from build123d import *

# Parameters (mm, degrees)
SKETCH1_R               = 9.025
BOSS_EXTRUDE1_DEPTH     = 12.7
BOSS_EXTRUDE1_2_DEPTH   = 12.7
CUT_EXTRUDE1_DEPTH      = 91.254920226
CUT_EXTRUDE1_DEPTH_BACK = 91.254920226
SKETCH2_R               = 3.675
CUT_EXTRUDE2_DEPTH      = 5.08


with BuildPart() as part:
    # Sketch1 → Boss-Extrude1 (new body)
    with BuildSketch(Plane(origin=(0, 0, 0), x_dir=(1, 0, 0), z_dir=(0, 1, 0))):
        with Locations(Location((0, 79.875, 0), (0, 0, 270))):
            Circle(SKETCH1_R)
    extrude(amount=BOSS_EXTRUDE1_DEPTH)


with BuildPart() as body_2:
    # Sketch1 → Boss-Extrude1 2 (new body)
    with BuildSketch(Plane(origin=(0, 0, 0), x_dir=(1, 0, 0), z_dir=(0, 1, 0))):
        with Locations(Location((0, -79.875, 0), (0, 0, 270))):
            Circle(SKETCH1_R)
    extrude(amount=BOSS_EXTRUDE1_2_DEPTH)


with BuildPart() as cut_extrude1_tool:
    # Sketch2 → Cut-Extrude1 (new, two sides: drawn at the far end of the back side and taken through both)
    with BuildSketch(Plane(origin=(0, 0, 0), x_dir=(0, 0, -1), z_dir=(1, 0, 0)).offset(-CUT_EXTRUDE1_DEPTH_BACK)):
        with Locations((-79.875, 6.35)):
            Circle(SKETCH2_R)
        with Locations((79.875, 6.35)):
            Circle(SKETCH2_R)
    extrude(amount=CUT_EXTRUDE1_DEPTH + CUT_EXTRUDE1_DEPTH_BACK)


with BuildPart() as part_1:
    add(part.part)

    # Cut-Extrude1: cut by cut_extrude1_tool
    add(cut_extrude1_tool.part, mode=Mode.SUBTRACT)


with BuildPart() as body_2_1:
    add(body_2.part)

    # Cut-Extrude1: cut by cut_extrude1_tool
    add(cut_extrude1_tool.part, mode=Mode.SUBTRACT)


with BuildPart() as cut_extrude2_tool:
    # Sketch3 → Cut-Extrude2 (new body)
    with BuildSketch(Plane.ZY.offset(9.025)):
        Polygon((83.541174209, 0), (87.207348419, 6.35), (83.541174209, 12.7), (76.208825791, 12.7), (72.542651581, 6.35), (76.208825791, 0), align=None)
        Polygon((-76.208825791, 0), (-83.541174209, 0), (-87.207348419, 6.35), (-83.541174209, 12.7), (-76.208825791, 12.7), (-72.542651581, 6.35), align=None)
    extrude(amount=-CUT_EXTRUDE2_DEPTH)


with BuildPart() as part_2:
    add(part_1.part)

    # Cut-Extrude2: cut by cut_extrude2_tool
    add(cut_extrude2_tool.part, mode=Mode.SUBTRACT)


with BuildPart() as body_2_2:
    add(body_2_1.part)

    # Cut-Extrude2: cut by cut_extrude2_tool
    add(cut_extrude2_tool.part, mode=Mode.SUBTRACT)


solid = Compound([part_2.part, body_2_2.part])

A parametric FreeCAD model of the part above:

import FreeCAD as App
import Part
import Sketcher

V = App.Vector
Q = App.Units.Quantity

doc = App.newDocument("Part")
body = doc.addObject("PartDesign::Body", "Body")

# Sketch on XZ plane
sketch1 = body.newObject("Sketcher::SketchObject", "Sketch")
sketch1.AttachmentSupport = (doc.getObject("XZ_Plane"), [""])
sketch1.MapMode = "FlatFace"
sketch1.addGeometry(Part.Circle(V(0, -79.875, 0), V(0, 0, 1), 9.025), False)
sketch1.addConstraint([
    Sketcher.Constraint("PointOnObject", 0, 3, -2),
    Sketcher.Constraint("Diameter", 0, Q("18.05 mm")),
    Sketcher.Constraint("DistanceY", 0, 3, -1, 1, Q("79.875 mm")),
])
pad1 = body.newObject("PartDesign::Pad", "Pad")
pad1.Profile = sketch1
pad1.Length = Q("0.5 in")
pad1.Reversed = True
body2 = doc.addObject("PartDesign::Body", "Body001")

# Sketch on XZ plane
sketch2 = body2.newObject("Sketcher::SketchObject", "Sketch001")
sketch2.AttachmentSupport = (doc.getObject("XZ_Plane001"), [""])
sketch2.MapMode = "FlatFace"
sketch2.addGeometry(Part.Circle(V(0, 79.875, 0), V(0, 0, 1), 9.025), False)
sketch2.addConstraint([
    Sketcher.Constraint("PointOnObject", 0, 3, -2),
    Sketcher.Constraint("Diameter", 0, Q("18.05 mm")),
    Sketcher.Constraint("DistanceY", -1, 1, 0, 3, Q("79.875 mm")),
])
pad2 = body2.newObject("PartDesign::Pad", "Pad001")
pad2.Profile = sketch2
pad2.Length = Q("0.5 in")
pad2.Reversed = True
body3 = doc.addObject("PartDesign::Body", "Body002")
body3.AllowCompound = True

# Sketch on YZ plane
sketch3 = body3.newObject("Sketcher::SketchObject", "Sketch002")
sketch3.AttachmentSupport = (doc.getObject("YZ_Plane002"), [""])
sketch3.MapMode = "FlatFace"
sketch3.addGeometry([
    Part.Circle(V(6.35, 79.875, 0), V(0, 0, 1), 3.675),
    Part.Circle(V(6.35, -79.875, 0), V(0, 0, 1), 3.675),
], False)
sketch3.addConstraint([
    Sketcher.Constraint("Equal", 0, 1),
    Sketcher.Constraint("Symmetric", 0, 3, 1, 3, -1),
    Sketcher.Constraint("Diameter", 0, Q("7.35 mm")),
    Sketcher.Constraint("DistanceX", -1, 1, 0, 3, Q("0.25 in")),
    Sketcher.Constraint("DistanceY", -1, 1, 0, 3, Q("79.875 mm")),
])
pad3 = body3.newObject("PartDesign::Pad", "Pad002")
pad3.Profile = sketch3
pad3.Type = "TwoLengths"
pad3.Length = 91.25492
pad3.Length2 = 91.25492
doc.recompute()

body4 = doc.addObject("PartDesign::Body", "Body003")
body4.BaseFeature = body3
boolean = body.newObject("PartDesign::Boolean", "Boolean")
boolean.Type = "Cut"
boolean.addObjects([body4])
doc.recompute()

boolean2 = body2.newObject("PartDesign::Boolean", "Boolean001")
boolean2.Type = "Cut"
boolean2.addObjects([body3])
body5 = doc.addObject("PartDesign::Body", "Body004")
body5.AllowCompound = True

# Sketch on YZ plane
sketch4 = body5.newObject("Sketcher::SketchObject", "Sketch003")
sketch4.AttachmentSupport = (doc.getObject("YZ_Plane004"), [""])
sketch4.MapMode = "FlatFace"
sketch4.AttachmentOffset = App.Placement(V(0, 0, -9.025), App.Rotation())
sketch4.addGeometry([
    Part.LineSegment(V(0, 83.541174, 0), V(6.35, 87.207348, 0)),  # 0
    Part.LineSegment(V(6.35, 87.207348, 0), V(12.7, 83.541174, 0)),  # 1
    Part.LineSegment(V(12.7, 83.541174, 0), V(12.7, 76.208826, 0)),  # 2
    Part.LineSegment(V(12.7, 76.208826, 0), V(6.35, 72.542652, 0)),  # 3
    Part.LineSegment(V(6.35, 72.542652, 0), V(0, 76.208826, 0)),  # 4
    Part.LineSegment(V(0, 76.208826, 0), V(0, 83.541174, 0)),  # 5
    Part.LineSegment(V(0, -83.541174, 0), V(0, -76.208826, 0)),  # 6
    Part.LineSegment(V(0, -76.208826, 0), V(6.35, -72.542652, 0)),  # 7
    Part.LineSegment(V(6.35, -72.542652, 0), V(12.7, -76.208826, 0)),  # 8
    Part.LineSegment(V(12.7, -76.208826, 0), V(12.7, -83.541174, 0)),  # 9
    Part.LineSegment(V(12.7, -83.541174, 0), V(6.35, -87.207348, 0)),  # 10
    Part.LineSegment(V(6.35, -87.207348, 0), V(0, -83.541174, 0)),  # 11
], False)
sketch4.addConstraint([
    Sketcher.Constraint("Coincident", 0, 2, 1, 1),
    Sketcher.Constraint("Coincident", 1, 2, 2, 1),
    Sketcher.Constraint("Coincident", 2, 2, 3, 1),
    Sketcher.Constraint("Coincident", 3, 2, 4, 1),
    Sketcher.Constraint("Coincident", 4, 2, 5, 1),
    Sketcher.Constraint("Coincident", 5, 2, 0, 1),
    Sketcher.Constraint("Coincident", 6, 2, 7, 1),
    Sketcher.Constraint("Coincident", 7, 2, 8, 1),
    Sketcher.Constraint("Coincident", 8, 2, 9, 1),
    Sketcher.Constraint("Coincident", 9, 2, 10, 1),
    Sketcher.Constraint("Coincident", 10, 2, 11, 1),
    Sketcher.Constraint("Coincident", 11, 2, 6, 1),
    Sketcher.Constraint("Vertical", 2),
    Sketcher.Constraint("Vertical", 5),
    Sketcher.Constraint("Vertical", 6),
    Sketcher.Constraint("Vertical", 9),
    Sketcher.Constraint("Symmetric", 4, 2, 6, 2, -1, 1),
    Sketcher.Constraint("Symmetric", 3, 2, 7, 2, -1),
    Sketcher.Constraint("Symmetric", 2, 2, 8, 2, -1),
    Sketcher.Constraint("Symmetric", 0, 2, 10, 2, -1),
    Sketcher.Constraint("Symmetric", 5, 2, 11, 2, -1),
    Sketcher.Constraint("Parallel", 0, 3),
    Sketcher.Constraint("Parallel", 1, 4),
    Sketcher.Constraint("Parallel", 3, 7),
    Sketcher.Constraint("Parallel", 7, 10),
    Sketcher.Constraint("Horizontal", 2, 2, 4, 2),
    Sketcher.Constraint("Horizontal", 1, 2, 5, 2),
    Sketcher.Constraint("Angle", 0, Q("30 deg")),
    Sketcher.Constraint("DistanceX", -1, 1, 1, 2, Q("0.5 in")),
    Sketcher.Constraint("DistanceY", 2, 2, 2, 1, Q("7.332348 mm")),
    Sketcher.Constraint("DistanceY", 6, 2, 5, 2, Q("159.75 mm")),
])
pad4 = body5.newObject("PartDesign::Pad", "Pad003")
pad4.Profile = sketch4
pad4.Length = Q("0.2 in")
doc.recompute()

body6 = doc.addObject("PartDesign::Body", "Body005")
body6.BaseFeature = body5
boolean3 = body.newObject("PartDesign::Boolean", "Boolean002")
boolean3.Type = "Cut"
boolean3.addObjects([body6])
doc.recompute()

boolean4 = body2.newObject("PartDesign::Boolean", "Boolean003")
boolean4.Type = "Cut"
boolean4.addObjects([body5])

doc.recompute()
